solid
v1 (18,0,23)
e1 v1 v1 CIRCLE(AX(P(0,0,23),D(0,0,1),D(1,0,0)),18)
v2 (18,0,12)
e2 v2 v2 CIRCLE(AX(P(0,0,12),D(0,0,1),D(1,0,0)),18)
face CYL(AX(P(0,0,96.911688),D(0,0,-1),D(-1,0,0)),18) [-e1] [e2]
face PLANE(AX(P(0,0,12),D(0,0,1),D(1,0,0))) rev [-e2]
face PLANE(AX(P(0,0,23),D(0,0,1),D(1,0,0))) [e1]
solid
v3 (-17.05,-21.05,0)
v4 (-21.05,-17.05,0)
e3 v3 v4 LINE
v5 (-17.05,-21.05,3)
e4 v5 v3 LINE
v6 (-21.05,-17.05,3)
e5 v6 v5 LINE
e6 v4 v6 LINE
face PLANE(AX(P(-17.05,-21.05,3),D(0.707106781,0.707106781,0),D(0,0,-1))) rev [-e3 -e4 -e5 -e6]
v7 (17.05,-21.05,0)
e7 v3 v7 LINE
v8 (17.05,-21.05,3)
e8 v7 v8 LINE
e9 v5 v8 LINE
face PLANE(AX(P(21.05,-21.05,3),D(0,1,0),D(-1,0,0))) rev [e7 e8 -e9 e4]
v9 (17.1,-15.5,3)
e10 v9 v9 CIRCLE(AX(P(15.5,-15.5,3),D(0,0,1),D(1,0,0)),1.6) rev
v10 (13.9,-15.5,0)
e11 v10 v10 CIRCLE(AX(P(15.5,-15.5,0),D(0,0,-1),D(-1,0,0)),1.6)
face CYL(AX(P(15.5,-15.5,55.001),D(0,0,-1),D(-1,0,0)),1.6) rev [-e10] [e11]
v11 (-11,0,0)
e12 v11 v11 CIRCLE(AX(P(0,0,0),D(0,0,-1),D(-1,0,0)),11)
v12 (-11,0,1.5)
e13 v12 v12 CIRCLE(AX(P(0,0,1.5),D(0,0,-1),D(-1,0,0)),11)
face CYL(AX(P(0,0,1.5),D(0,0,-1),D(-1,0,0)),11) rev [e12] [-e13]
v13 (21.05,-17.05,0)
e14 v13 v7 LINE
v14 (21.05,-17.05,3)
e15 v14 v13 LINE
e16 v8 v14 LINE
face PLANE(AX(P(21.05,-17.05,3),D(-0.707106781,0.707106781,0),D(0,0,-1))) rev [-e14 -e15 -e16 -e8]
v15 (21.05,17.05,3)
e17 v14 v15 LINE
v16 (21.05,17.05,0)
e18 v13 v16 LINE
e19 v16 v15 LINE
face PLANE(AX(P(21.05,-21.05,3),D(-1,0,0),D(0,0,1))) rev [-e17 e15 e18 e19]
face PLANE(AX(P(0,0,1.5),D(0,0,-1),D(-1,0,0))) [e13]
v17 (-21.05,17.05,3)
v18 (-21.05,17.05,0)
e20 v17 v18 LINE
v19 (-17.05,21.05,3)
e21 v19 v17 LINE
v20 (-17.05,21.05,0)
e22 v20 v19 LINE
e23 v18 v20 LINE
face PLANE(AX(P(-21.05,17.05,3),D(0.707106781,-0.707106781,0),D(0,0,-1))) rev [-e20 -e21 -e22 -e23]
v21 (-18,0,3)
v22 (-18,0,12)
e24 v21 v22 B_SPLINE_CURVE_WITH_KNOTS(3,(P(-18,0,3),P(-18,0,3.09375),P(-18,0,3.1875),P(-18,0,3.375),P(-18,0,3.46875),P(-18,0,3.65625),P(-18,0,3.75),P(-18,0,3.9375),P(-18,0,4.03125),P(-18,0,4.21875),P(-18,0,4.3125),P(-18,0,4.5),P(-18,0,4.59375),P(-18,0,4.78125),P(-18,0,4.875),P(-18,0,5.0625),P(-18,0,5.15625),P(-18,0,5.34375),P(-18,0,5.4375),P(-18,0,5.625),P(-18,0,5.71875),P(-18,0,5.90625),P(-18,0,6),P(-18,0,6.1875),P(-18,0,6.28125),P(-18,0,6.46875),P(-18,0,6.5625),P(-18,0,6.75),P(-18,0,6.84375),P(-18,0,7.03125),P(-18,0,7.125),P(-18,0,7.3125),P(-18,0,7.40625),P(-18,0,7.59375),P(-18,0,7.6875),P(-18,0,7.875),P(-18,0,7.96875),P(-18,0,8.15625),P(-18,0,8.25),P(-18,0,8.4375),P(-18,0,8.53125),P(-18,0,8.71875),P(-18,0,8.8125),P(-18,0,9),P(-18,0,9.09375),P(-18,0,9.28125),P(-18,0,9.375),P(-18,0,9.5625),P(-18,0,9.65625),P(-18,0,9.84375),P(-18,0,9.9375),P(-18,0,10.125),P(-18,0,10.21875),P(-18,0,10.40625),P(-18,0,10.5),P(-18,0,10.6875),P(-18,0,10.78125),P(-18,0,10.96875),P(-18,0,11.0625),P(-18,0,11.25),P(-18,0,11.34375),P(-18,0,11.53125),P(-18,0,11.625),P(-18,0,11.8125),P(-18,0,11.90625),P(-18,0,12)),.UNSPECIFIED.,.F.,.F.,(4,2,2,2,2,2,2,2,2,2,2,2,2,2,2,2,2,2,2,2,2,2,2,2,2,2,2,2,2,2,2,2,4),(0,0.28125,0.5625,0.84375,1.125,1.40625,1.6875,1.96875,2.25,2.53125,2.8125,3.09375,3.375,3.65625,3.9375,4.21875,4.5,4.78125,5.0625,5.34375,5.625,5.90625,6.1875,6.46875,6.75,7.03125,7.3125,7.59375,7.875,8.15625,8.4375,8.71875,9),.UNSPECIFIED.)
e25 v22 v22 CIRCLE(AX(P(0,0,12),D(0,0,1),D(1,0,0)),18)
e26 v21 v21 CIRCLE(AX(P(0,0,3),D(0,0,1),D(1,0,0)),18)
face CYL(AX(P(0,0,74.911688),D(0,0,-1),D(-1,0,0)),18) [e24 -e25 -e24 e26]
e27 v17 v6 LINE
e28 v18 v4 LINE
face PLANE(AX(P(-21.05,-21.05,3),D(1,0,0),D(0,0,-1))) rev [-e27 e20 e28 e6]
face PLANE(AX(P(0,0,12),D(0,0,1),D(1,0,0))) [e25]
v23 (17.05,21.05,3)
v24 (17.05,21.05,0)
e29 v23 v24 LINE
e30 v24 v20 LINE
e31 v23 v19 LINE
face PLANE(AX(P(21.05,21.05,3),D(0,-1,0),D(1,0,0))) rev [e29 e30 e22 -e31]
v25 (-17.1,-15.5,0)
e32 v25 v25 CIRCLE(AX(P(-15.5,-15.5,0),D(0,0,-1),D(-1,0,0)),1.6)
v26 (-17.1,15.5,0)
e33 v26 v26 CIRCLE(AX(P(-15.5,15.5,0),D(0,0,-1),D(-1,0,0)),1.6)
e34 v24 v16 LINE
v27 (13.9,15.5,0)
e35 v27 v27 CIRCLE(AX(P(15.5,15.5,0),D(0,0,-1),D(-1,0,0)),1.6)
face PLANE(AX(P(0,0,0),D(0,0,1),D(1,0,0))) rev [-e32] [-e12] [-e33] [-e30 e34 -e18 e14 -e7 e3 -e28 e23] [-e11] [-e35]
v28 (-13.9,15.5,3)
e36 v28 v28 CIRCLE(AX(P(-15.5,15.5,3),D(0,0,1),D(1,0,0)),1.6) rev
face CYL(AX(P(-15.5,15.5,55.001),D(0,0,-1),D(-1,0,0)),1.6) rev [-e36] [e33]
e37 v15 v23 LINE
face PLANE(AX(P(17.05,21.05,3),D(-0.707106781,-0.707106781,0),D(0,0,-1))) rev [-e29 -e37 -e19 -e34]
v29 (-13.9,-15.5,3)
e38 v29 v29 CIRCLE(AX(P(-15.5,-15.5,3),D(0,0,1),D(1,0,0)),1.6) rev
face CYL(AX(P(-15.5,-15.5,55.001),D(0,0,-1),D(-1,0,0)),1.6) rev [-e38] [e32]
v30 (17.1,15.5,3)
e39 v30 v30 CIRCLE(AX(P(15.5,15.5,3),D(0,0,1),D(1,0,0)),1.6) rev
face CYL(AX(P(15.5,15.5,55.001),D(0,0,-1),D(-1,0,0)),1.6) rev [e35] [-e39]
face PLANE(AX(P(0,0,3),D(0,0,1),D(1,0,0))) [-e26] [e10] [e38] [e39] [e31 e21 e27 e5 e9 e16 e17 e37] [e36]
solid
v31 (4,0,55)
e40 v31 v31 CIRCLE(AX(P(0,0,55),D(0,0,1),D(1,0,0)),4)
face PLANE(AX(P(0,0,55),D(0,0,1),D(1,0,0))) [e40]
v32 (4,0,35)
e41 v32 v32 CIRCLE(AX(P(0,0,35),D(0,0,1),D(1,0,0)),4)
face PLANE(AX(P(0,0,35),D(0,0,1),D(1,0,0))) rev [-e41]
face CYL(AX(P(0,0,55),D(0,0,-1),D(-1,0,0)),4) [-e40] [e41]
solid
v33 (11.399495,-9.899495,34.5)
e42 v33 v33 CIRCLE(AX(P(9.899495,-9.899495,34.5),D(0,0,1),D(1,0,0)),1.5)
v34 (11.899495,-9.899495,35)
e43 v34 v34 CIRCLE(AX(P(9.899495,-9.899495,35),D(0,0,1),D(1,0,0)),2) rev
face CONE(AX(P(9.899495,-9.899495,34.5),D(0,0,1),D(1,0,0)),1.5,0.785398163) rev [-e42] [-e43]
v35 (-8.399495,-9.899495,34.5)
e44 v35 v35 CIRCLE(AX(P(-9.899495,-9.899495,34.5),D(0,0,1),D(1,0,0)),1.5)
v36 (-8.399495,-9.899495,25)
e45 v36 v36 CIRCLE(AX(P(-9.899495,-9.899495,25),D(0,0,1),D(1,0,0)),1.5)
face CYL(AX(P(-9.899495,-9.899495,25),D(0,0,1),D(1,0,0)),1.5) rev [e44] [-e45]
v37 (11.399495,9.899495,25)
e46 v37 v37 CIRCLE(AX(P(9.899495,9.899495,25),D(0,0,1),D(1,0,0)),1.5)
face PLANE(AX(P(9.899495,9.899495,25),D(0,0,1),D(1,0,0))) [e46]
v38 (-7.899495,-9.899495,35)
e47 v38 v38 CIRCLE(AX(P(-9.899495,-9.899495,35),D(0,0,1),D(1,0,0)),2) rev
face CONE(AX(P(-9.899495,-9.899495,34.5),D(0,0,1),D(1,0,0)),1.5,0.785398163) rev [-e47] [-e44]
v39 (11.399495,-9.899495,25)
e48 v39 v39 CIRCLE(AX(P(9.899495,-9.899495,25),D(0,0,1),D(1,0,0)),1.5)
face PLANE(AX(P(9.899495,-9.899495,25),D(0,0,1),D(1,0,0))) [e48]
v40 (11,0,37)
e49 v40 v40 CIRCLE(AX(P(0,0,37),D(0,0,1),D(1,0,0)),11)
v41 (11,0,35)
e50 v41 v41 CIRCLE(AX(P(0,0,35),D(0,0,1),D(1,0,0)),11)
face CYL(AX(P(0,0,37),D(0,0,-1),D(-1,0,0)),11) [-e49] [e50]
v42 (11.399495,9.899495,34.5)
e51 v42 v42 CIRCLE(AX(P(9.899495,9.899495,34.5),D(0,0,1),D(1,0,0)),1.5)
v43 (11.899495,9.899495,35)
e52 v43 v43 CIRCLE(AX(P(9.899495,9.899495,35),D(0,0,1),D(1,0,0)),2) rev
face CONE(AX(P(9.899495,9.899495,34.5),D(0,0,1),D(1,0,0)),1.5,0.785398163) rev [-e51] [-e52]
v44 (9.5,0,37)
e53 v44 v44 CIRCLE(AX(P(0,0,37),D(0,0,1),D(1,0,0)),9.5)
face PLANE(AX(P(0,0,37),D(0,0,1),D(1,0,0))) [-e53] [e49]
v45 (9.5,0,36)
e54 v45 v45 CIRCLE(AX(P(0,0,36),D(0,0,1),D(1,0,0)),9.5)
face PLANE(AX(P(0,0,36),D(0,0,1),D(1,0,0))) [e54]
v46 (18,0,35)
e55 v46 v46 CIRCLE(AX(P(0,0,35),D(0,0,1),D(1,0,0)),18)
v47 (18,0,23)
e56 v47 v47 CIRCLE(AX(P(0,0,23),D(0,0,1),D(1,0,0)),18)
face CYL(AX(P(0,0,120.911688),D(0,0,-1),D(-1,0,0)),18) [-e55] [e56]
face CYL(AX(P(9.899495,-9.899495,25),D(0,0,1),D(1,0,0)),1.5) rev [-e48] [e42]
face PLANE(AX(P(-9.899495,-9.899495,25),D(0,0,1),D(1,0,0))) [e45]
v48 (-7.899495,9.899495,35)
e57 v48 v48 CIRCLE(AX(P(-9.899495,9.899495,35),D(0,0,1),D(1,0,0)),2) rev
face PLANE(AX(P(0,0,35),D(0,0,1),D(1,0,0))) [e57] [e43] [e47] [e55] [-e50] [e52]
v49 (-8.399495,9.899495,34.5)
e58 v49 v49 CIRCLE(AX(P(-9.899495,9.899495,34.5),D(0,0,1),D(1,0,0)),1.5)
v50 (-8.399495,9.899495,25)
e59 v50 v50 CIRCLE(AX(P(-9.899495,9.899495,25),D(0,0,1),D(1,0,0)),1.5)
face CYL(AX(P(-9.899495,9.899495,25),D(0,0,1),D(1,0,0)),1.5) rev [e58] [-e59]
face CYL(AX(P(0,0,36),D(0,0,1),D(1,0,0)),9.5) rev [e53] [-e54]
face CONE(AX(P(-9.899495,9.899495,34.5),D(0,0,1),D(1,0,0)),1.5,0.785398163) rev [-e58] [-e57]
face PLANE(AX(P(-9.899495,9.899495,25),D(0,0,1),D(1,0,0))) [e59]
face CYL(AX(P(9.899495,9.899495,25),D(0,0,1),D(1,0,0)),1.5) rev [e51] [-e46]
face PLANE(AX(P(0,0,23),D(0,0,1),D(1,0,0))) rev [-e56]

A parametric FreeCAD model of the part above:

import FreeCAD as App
import Part
import Sketcher
from FreeCAD import Vector
Q = App.Units.Quantity


def edges_at(feature, points):
    """Names of the edges that pass closest to the given points."""
    edges = feature.Shape.Edges
    near = lambda p: min(range(len(edges)), key=lambda i: edges[i].distToShape(Part.Vertex(*p))[0])
    return sorted({f"Edge{near(p) + 1}" for p in points})

doc = App.newDocument("Part")
params = doc.addObject("Spreadsheet::Sheet", "Params")
for row, (alias, value) in enumerate([
    ("sketch1_width", "42.1 mm"),
    ("pad1_length", "3 mm"),
    ("sketch2_diameter", "36 mm"),
    ("pad2_length", "9 mm"),
    ("sketch3_diameter", "3.2 mm"),
    ("pocket1_length", "3 mm"),
    ("chamfer_size", "4 mm"),
    ("sketch4_diameter", "22 mm"),
    ("pocket2_length", "1.5 mm"),
    ("sketch5_diameter", "36 mm"),
    ("pad3_length", "11 mm"),
    ("sketch6_diameter", "36 mm"),
    ("pad4_length", "12 mm"),
    ("sketch7_diameter", "22 mm"),
    ("pad5_length", "2 mm"),
    ("sketch8_diameter", "19 mm"),
    ("pocket3_length", "1 mm"),
    ("sketch9_diameter", "3 mm"),
    ("pocket4_length", "10 mm"),
    ("chamfer2_size", "0.5 mm"),
    ("sketch10_diameter", "8 mm"),
    ("pad6_length", "20 mm"),
], start=1):
    params.set(f"A{row}", alias)
    params.set(f"B{row}", "=" + value)
    params.setAlias(f"B{row}", alias)

body = doc.addObject("PartDesign::Body", "Body")

sketch1 = doc.addObject("Sketcher::SketchObject", "Sketch")
body.addObject(sketch1)
sketch1.AttachmentSupport = (doc.XY_Plane, [""])
sketch1.MapMode = "FlatFace"
sketch1.addGeometry([
    Part.LineSegment(Vector(-21, 21, 0), Vector(-21, -21, 0)),
    Part.LineSegment(Vector(-21, -21, 0), Vector(21, -21, 0)),
    Part.LineSegment(Vector(21, -21, 0), Vector(21, 21, 0)),
    Part.LineSegment(Vector(21, 21, 0), Vector(-21, 21, 0)),
], False)
sketch1.addConstraint([
    Sketcher.Constraint("Coincident", 0, 2, 1, 1),
    Sketcher.Constraint("Coincident", 1, 2, 2, 1),
    Sketcher.Constraint("Coincident", 2, 2, 3, 1),
    Sketcher.Constraint("Coincident", 3, 2, 0, 1),
    Sketcher.Constraint("Vertical", 0),
    Sketcher.Constraint("Horizontal", 1),
    Sketcher.Constraint("Vertical", 2),
    Sketcher.Constraint("Horizontal", 3),
    Sketcher.Constraint("Symmetric", 0, 2, 2, 2, -1, 1),
    Sketcher.Constraint("Equal", 3, 0),
    Sketcher.Constraint("DistanceX", 1, 1, 1, 2, Q("42.1 mm")),
])
sketch1.setExpression("Constraints[10]", "Params.sketch1_width")
pad1 = doc.addObject("PartDesign::Pad", "Pad")
body.addObject(pad1)
pad1.Profile = sketch1
pad1.setExpression("Length", "Params.pad1_length")

sketch2 = doc.addObject("Sketcher::SketchObject", "Sketch001")
body.addObject(sketch2)
sketch2.AttachmentSupport = (doc.XY_Plane, [""])
sketch2.MapMode = "FlatFace"
sketch2.AttachmentOffset = App.Placement(Vector(0, 0, 3), App.Rotation())
sketch2.addGeometry(Part.Circle(Vector(0, 0, 0), Vector(0, 0, 1), 18), False)
sketch2.addConstraint([
    Sketcher.Constraint("Coincident", 0, 3, -1, 1),
    Sketcher.Constraint("Diameter", 0, Q("36 mm")),
])
sketch2.setExpression("Constraints[1]", "Params.sketch2_diameter")
pad2 = doc.addObject("PartDesign::Pad", "Pad001")
body.addObject(pad2)
pad2.Profile = sketch2
pad2.setExpression("Length", "Params.pad2_length")

sketch3 = doc.addObject("Sketcher::SketchObject", "Sketch002")
body.addObject(sketch3)
sketch3.AttachmentSupport = (doc.XY_Plane, [""])
sketch3.MapMode = "FlatFace"
sketch3.addGeometry([
    Part.Circle(Vector(15.5, 15.5, 0), Vector(0, 0, 1), 1.6),
    Part.Circle(Vector(-15.5, 15.5, 0), Vector(0, 0, 1), 1.6),
    Part.Circle(Vector(-15.5, -15.5, 0), Vector(0, 0, 1), 1.6),
    Part.Circle(Vector(15.5, -15.5, 0), Vector(0, 0, 1), 1.6),
], False)
sketch3.addConstraint([
    Sketcher.Constraint("Equal", 0, 1),
    Sketcher.Constraint("Equal", 1, 2),
    Sketcher.Constraint("Equal", 2, 3),
    Sketcher.Constraint("Symmetric", 0, 3, 2, 3, -1, 1),
    Sketcher.Constraint("Symmetric", 1, 3, 3, 3, -1, 1),
    Sketcher.Constraint("Symmetric", 0, 3, 1, 3, -2),
    Sketcher.Constraint("Diameter", 0, Q("3.2 mm")),
    Sketcher.Constraint("DistanceX", 1, 3, 0, 3, Q("31 mm")),
    Sketcher.Constraint("DistanceY", 2, 3, 1, 3, Q("31 mm")),
])
sketch3.setExpression("Constraints[6]", "Params.sketch3_diameter")
pocket1 = doc.addObject("PartDesign::Pocket", "Pocket")
body.addObject(pocket1)
pocket1.Profile = sketch3
pocket1.setExpression("Length", "Params.pocket1_length")
pocket1.Reversed = True
doc.recompute()

chamfer = doc.addObject("PartDesign::Chamfer", "Chamfer")
body.addObject(chamfer)
chamfer.Base = (pocket1, edges_at(pocket1, [
    (-21.05, 21.05, 1.5),
    (21.05, 21.05, 1.5),
    (21.05, -21.05, 1.5),
    (-21.05, -21.05, 1.5),
]))
chamfer.setExpression("Size", "Params.chamfer_size")

sketch4 = doc.addObject("Sketcher::SketchObject", "Sketch003")
body.addObject(sketch4)
sketch4.AttachmentSupport = (doc.XY_Plane, [""])
sketch4.MapMode = "FlatFace"
sketch4.addGeometry(Part.Circle(Vector(0, 0, 0), Vector(0, 0, 1), 11), False)
sketch4.addConstraint([
    Sketcher.Constraint("Coincident", 0, 3, -1, 1),
    Sketcher.Constraint("Diameter", 0, Q("22 mm")),
])
sketch4.setExpression("Constraints[1]", "Params.sketch4_diameter")
pocket2 = doc.addObject("PartDesign::Pocket", "Pocket001")
body.addObject(pocket2)
pocket2.Profile = sketch4
pocket2.setExpression("Length", "Params.pocket2_length")
pocket2.Reversed = True
body2 = doc.addObject("PartDesign::Body", "Body001")

sketch5 = doc.addObject("Sketcher::SketchObject", "Sketch004")
body2.addObject(sketch5)
sketch5.AttachmentSupport = (doc.getObject("XY_Plane001"), [""])
sketch5.MapMode = "FlatFace"
sketch5.AttachmentOffset = App.Placement(Vector(0, 0, 12), App.Rotation())
sketch5.addGeometry(Part.Circle(Vector(0, 0, 0), Vector(0, 0, 1), 18), False)
sketch5.addConstraint([
    Sketcher.Constraint("Coincident", 0, 3, -1, 1),
    Sketcher.Constraint("Diameter", 0, Q("36 mm")),
])
sketch5.setExpression("Constraints[1]", "Params.sketch5_diameter")
pad3 = doc.addObject("PartDesign::Pad", "Pad002")
body2.addObject(pad3)
pad3.Profile = sketch5
pad3.setExpression("Length", "Params.pad3_length")
body3 = doc.addObject("PartDesign::Body", "Body002")

sketch6 = doc.addObject("Sketcher::SketchObject", "Sketch005")
body3.addObject(sketch6)
sketch6.AttachmentSupport = (doc.getObject("XY_Plane002"), [""])
sketch6.MapMode = "FlatFace"
sketch6.AttachmentOffset = App.Placement(Vector(0, 0, 23), App.Rotation())
sketch6.addGeometry(Part.Circle(Vector(0, 0, 0), Vector(0, 0, 1), 18), False)
sketch6.addConstraint([
    Sketcher.Constraint("Coincident", 0, 3, -1, 1),
    Sketcher.Constraint("Diameter", 0, Q("36 mm")),
])
sketch6.setExpression("Constraints[1]", "Params.sketch6_diameter")
pad4 = doc.addObject("PartDesign::Pad", "Pad003")
body3.addObject(pad4)
pad4.Profile = sketch6
pad4.setExpression("Length", "Params.pad4_length")

sketch7 = doc.addObject("Sketcher::SketchObject", "Sketch006")
body3.addObject(sketch7)
sketch7.AttachmentSupport = (doc.getObject("XY_Plane002"), [""])
sketch7.MapMode = "FlatFace"
sketch7.AttachmentOffset = App.Placement(Vector(0, 0, 35), App.Rotation())
sketch7.addGeometry(Part.Circle(Vector(0, 0, 0), Vector(0, 0, 1), 11), False)
sketch7.addConstraint([
    Sketcher.Constraint("Coincident", 0, 3, -1, 1),
    Sketcher.Constraint("Diameter", 0, Q("22 mm")),
])
sketch7.setExpression("Constraints[1]", "Params.sketch7_diameter")
pad5 = doc.addObject("PartDesign::Pad", "Pad004")
body3.addObject(pad5)
pad5.Profile = sketch7
pad5.setExpression("Length", "Params.pad5_length")

sketch8 = doc.addObject("Sketcher::SketchObject", "Sketch007")
body3.addObject(sketch8)
sketch8.AttachmentSupport = (doc.getObject("XY_Plane002"), [""])
sketch8.MapMode = "FlatFace"
sketch8.AttachmentOffset = App.Placement(Vector(0, 0, 37), App.Rotation())
sketch8.addGeometry(Part.Circle(Vector(0, 0, 0), Vector(0, 0, 1), 10), False)
sketch8.addConstraint([
    Sketcher.Constraint("Coincident", 0, 3, -1, 1),
    Sketcher.Constraint("Diameter", 0, Q("19 mm")),
])
sketch8.setExpression("Constraints[1]", "Params.sketch8_diameter")
pocket3 = doc.addObject("PartDesign::Pocket", "Pocket002")
body3.addObject(pocket3)
pocket3.Profile = sketch8
pocket3.setExpression("Length", "Params.pocket3_length")

sketch9 = doc.addObject("Sketcher::SketchObject", "Sketch008")
body3.addObject(sketch9)
sketch9.AttachmentSupport = (doc.getObject("XY_Plane002"), [""])
sketch9.MapMode = "FlatFace"
sketch9.AttachmentOffset = App.Placement(Vector(0, 0, 35), App.Rotation())
sketch9.addGeometry([
    Part.Circle(Vector(-9.9, 9.9, 0), Vector(0, 0, 1), 1.5),
    Part.Circle(Vector(9.9, 9.9, 0), Vector(0, 0, 1), 1.5),
    Part.Circle(Vector(9.9, -9.9, 0), Vector(0, 0, 1), 1.5),
    Part.Circle(Vector(-9.9, -9.9, 0), Vector(0, 0, 1), 1.5),
], False)
sketch9.addConstraint([
    Sketcher.Constraint("Equal", 0, 1),
    Sketcher.Constraint("Equal", 1, 2),
    Sketcher.Constraint("Equal", 2, 3),
    Sketcher.Constraint("Symmetric", 0, 3, 2, 3, -1, 1),
    Sketcher.Constraint("Symmetric", 1, 3, 3, 3, -1, 1),
    Sketcher.Constraint("Symmetric", 0, 3, 1, 3, -2),
    Sketcher.Constraint("Diameter", 0, Q("3 mm")),
    Sketcher.Constraint("DistanceX", 0, 3, 1, 3, Q("19.79899 mm")),
    Sketcher.Constraint("DistanceY", 2, 3, 1, 3, Q("19.79899 mm")),
])
sketch9.setExpression("Constraints[6]", "Params.sketch9_diameter")
pocket4 = doc.addObject("PartDesign::Pocket", "Pocket003")
body3.addObject(pocket4)
pocket4.Profile = sketch9
pocket4.setExpression("Length", "Params.pocket4_length")
doc.recompute()

chamfer2 = doc.addObject("PartDesign::Chamfer", "Chamfer001")
body3.addObject(chamfer2)
chamfer2.Base = (pocket4, edges_at(pocket4, [
    (-11.399, -9.899, 35),
    (8.399, -9.899, 35),
    (8.399, 9.899, 35),
    (-11.399, 9.899, 35),
]))
chamfer2.setExpression("Size", "Params.chamfer2_size")
body4 = doc.addObject("PartDesign::Body", "Body003")

sketch10 = doc.addObject("Sketcher::SketchObject", "Sketch009")
body4.addObject(sketch10)
sketch10.AttachmentSupport = (doc.getObject("XY_Plane003"), [""])
sketch10.MapMode = "FlatFace"
sketch10.AttachmentOffset = App.Placement(Vector(0, 0, 35), App.Rotation())
sketch10.addGeometry(Part.Circle(Vector(0, 0, 0), Vector(0, 0, 1), 4), False)
sketch10.addConstraint([
    Sketcher.Constraint("Coincident", 0, 3, -1, 1),
    Sketcher.Constraint("Diameter", 0, Q("8 mm")),
])
sketch10.setExpression("Constraints[1]", "Params.sketch10_diameter")
pad6 = doc.addObject("PartDesign::Pad", "Pad005")
body4.addObject(pad6)
pad6.Profile = sketch10
pad6.setExpression("Length", "Params.pad6_length")

doc.recompute()
